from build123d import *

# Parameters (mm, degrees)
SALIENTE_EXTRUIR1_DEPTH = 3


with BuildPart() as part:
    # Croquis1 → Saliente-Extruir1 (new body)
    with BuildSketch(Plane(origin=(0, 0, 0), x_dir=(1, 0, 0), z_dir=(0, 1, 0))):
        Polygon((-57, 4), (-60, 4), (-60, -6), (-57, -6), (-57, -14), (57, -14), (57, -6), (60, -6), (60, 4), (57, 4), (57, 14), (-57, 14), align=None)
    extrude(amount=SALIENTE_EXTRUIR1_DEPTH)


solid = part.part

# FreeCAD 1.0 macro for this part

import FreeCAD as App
import Part
import Sketcher
from FreeCAD import Vector

doc = App.newDocument("Part")
body = doc.addObject("PartDesign::Body", "Body")

# Sketch on XZ plane
sketch1 = doc.addObject("Sketcher::SketchObject", "Sketch")
body.addObject(sketch1)
sketch1.AttachmentSupport = (doc.XZ_Plane, [""])
sketch1.MapMode = "FlatFace"
sketch1.addGeometry([
    Part.LineSegment(Vector(-57, -4, 0), Vector(-60, -4, 0)),  # 0
    Part.LineSegment(Vector(-60, -4, 0), Vector(-60, 6, 0)),  # 1
    Part.LineSegment(Vector(-60, 6, 0), Vector(-57, 6, 0)),  # 2
    Part.LineSegment(Vector(-57, 6, 0), Vector(-57, 14, 0)),  # 3
    Part.LineSegment(Vector(-57, 14, 0), Vector(57, 14, 0)),  # 4
    Part.LineSegment(Vector(57, 14, 0), Vector(57, 6, 0)),  # 5
    Part.LineSegment(Vector(57, 6, 0), Vector(60, 6, 0)),  # 6
    Part.LineSegment(Vector(60, 6, 0), Vector(60, -4, 0)),  # 7
    Part.LineSegment(Vector(60, -4, 0), Vector(57, -4, 0)),  # 8
    Part.LineSegment(Vector(57, -4, 0), Vector(57, -14, 0)),  # 9
    Part.LineSegment(Vector(57, -14, 0), Vector(-57, -14, 0)),  # 10
    Part.LineSegment(Vector(-57, -14, 0), Vector(-57, -4, 0)),  # 11
], False)
sketch1.addConstraint([
    Sketcher.Constraint("Coincident", 0, 2, 1, 1),
    Sketcher.Constraint("Coincident", 1, 2, 2, 1),
    Sketcher.Constraint("Coincident", 2, 2, 3, 1),
    Sketcher.Constraint("Coincident", 3, 2, 4, 1),
    Sketcher.Constraint("Coincident", 4, 2, 5, 1),
    Sketcher.Constraint("Coincident", 5, 2, 6, 1),
    Sketcher.Constraint("Coincident", 6, 2, 7, 1),
    Sketcher.Constraint("Coincident", 7, 2, 8, 1),
    Sketcher.Constraint("Coincident", 8, 2, 9, 1),
    Sketcher.Constraint("Coincident", 9, 2, 10, 1),
    Sketcher.Constraint("Coincident", 10, 2, 11, 1),
    Sketcher.Constraint("Coincident", 11, 2, 0, 1),
    Sketcher.Constraint("Horizontal", 0),
    Sketcher.Constraint("Vertical", 1),
    Sketcher.Constraint("Horizontal", 2),
    Sketcher.Constraint("Vertical", 3),
    Sketcher.Constraint("Horizontal", 4),
    Sketcher.Constraint("Vertical", 5),
    Sketcher.Constraint("Horizontal", 6),
    Sketcher.Constraint("Vertical", 7),
    Sketcher.Constraint("Horizontal", 8),
    Sketcher.Constraint("Vertical", 9),
    Sketcher.Constraint("Horizontal", 10),
    Sketcher.Constraint("Vertical", 11),
    Sketcher.Constraint("Symmetric", 3, 2, 9, 2, -1, 1),
    Sketcher.Constraint("Symmetric", 2, 2, 5, 2, -2),
    Sketcher.Constraint("Symmetric", 0, 2, 7, 2, -2),
    Sketcher.Constraint("Vertical", 3, 2, 10, 2),
    Sketcher.Constraint("Equal", 7, 9),
    Sketcher.Constraint("DistanceX", 0, 2, 0, 1, 3.0),
    Sketcher.Constraint("DistanceX", 4, 1, 4, 2, 114.0),
    Sketcher.Constraint("DistanceY", 1, 1, 1, 2, 10.0),
    Sketcher.Constraint("DistanceY", 3, 1, 3, 2, 8.0),
])
pad1 = doc.addObject("PartDesign::Pad", "Pad")
body.addObject(pad1)
pad1.Profile = sketch1
pad1.Length = 3
pad1.Reversed = True

doc.recompute()
